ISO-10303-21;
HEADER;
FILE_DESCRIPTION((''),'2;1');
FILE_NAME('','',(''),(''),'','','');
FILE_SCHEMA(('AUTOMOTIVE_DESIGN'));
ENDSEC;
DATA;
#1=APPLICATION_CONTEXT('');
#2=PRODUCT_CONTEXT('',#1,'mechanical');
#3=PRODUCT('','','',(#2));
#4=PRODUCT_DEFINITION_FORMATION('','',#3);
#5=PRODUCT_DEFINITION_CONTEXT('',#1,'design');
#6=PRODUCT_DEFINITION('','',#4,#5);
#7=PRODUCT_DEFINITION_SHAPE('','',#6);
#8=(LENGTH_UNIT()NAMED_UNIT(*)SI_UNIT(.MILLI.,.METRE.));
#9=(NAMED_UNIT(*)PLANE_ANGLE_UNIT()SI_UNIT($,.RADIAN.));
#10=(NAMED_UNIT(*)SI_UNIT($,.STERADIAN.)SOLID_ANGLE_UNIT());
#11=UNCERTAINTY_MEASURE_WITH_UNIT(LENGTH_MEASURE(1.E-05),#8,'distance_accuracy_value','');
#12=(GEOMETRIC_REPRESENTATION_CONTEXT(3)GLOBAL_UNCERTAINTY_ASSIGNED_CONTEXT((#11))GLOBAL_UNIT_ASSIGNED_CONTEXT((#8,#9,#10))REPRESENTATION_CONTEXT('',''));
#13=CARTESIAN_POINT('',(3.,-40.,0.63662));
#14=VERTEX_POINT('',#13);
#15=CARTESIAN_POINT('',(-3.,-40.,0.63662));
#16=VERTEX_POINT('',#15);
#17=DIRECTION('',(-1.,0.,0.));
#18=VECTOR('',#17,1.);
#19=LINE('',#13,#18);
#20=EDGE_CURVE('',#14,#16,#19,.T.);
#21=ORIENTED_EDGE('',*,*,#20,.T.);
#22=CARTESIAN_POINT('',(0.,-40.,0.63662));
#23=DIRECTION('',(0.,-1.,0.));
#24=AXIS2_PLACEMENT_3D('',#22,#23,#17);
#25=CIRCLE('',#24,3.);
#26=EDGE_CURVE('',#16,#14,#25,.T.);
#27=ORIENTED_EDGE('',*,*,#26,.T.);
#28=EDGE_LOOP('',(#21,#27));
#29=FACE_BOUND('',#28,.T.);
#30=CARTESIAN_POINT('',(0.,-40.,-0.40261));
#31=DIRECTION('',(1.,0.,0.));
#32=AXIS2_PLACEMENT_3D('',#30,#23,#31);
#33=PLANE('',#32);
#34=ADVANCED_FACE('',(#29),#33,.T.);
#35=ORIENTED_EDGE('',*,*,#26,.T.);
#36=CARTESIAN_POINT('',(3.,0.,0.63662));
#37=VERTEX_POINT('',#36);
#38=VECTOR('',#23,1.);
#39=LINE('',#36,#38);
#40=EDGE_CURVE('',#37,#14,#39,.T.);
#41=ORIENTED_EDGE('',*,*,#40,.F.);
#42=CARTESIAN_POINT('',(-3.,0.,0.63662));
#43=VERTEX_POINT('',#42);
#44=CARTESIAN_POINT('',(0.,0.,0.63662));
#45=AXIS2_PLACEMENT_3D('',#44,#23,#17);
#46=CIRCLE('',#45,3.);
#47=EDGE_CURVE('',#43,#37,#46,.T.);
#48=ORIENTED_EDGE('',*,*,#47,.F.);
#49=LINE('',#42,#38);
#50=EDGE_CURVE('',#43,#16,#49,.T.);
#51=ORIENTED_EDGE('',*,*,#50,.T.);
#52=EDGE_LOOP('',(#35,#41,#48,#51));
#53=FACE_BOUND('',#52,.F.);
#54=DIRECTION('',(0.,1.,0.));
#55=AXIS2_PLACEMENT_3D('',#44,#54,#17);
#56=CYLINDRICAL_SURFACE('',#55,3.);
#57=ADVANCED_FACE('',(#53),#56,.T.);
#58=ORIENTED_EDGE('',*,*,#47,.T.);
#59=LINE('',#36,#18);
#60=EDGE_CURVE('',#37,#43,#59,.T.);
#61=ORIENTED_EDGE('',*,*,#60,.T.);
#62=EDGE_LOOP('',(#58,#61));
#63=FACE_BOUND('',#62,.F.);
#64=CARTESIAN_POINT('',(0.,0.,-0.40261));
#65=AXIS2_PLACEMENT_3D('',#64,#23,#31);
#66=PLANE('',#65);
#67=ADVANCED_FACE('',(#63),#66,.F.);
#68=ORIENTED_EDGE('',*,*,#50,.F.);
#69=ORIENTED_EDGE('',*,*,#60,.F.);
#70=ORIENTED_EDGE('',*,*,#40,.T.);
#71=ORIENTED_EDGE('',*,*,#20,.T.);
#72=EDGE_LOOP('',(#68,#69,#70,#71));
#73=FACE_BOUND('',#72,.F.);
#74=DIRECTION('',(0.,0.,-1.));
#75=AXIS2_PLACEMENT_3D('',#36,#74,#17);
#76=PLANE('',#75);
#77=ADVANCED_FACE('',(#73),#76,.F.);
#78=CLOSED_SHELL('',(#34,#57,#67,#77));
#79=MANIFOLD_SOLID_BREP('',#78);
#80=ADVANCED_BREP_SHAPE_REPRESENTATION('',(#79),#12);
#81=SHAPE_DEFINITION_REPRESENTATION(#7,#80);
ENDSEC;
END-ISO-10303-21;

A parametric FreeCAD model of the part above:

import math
import FreeCAD as App
import Part
import Sketcher
from FreeCAD import Vector
Q = App.Units.Quantity

doc = App.newDocument("Part")
body = doc.addObject("PartDesign::Body", "Body")

# Sketch on XZ plane
sketch1 = doc.addObject("Sketcher::SketchObject", "Sketch")
body.addObject(sketch1)
sketch1.AttachmentSupport = (doc.XZ_Plane, [""])
sketch1.MapMode = "FlatFace"
sketch1.addGeometry([
    Part.LineSegment(Vector(3, 0.6, 0), Vector(-3, 0.6, 0)),
    Part.ArcOfCircle(Part.Circle(Vector(0, 0.6, 0), Vector(0, 0, 1), 3), math.radians(180), math.radians(360)),
], False)
sketch1.addConstraint([
    Sketcher.Constraint("Coincident", 0, 1, 1, 2),
    Sketcher.Constraint("Coincident", 1, 1, 0, 2),
    Sketcher.Constraint("Horizontal", 0),
    Sketcher.Constraint("PointOnObject", 1, 3, -2),
    Sketcher.Constraint("Horizontal", 1, 3, 0, 1),
    Sketcher.Constraint("Radius", 1, Q("3 mm")),
    Sketcher.Constraint("DistanceY", -1, 1, 1, 3, Q("0.63662 mm")),
])
pad1 = doc.addObject("PartDesign::Pad", "Pad")
body.addObject(pad1)
pad1.Profile = sketch1
pad1.Length = 40

doc.recompute()
